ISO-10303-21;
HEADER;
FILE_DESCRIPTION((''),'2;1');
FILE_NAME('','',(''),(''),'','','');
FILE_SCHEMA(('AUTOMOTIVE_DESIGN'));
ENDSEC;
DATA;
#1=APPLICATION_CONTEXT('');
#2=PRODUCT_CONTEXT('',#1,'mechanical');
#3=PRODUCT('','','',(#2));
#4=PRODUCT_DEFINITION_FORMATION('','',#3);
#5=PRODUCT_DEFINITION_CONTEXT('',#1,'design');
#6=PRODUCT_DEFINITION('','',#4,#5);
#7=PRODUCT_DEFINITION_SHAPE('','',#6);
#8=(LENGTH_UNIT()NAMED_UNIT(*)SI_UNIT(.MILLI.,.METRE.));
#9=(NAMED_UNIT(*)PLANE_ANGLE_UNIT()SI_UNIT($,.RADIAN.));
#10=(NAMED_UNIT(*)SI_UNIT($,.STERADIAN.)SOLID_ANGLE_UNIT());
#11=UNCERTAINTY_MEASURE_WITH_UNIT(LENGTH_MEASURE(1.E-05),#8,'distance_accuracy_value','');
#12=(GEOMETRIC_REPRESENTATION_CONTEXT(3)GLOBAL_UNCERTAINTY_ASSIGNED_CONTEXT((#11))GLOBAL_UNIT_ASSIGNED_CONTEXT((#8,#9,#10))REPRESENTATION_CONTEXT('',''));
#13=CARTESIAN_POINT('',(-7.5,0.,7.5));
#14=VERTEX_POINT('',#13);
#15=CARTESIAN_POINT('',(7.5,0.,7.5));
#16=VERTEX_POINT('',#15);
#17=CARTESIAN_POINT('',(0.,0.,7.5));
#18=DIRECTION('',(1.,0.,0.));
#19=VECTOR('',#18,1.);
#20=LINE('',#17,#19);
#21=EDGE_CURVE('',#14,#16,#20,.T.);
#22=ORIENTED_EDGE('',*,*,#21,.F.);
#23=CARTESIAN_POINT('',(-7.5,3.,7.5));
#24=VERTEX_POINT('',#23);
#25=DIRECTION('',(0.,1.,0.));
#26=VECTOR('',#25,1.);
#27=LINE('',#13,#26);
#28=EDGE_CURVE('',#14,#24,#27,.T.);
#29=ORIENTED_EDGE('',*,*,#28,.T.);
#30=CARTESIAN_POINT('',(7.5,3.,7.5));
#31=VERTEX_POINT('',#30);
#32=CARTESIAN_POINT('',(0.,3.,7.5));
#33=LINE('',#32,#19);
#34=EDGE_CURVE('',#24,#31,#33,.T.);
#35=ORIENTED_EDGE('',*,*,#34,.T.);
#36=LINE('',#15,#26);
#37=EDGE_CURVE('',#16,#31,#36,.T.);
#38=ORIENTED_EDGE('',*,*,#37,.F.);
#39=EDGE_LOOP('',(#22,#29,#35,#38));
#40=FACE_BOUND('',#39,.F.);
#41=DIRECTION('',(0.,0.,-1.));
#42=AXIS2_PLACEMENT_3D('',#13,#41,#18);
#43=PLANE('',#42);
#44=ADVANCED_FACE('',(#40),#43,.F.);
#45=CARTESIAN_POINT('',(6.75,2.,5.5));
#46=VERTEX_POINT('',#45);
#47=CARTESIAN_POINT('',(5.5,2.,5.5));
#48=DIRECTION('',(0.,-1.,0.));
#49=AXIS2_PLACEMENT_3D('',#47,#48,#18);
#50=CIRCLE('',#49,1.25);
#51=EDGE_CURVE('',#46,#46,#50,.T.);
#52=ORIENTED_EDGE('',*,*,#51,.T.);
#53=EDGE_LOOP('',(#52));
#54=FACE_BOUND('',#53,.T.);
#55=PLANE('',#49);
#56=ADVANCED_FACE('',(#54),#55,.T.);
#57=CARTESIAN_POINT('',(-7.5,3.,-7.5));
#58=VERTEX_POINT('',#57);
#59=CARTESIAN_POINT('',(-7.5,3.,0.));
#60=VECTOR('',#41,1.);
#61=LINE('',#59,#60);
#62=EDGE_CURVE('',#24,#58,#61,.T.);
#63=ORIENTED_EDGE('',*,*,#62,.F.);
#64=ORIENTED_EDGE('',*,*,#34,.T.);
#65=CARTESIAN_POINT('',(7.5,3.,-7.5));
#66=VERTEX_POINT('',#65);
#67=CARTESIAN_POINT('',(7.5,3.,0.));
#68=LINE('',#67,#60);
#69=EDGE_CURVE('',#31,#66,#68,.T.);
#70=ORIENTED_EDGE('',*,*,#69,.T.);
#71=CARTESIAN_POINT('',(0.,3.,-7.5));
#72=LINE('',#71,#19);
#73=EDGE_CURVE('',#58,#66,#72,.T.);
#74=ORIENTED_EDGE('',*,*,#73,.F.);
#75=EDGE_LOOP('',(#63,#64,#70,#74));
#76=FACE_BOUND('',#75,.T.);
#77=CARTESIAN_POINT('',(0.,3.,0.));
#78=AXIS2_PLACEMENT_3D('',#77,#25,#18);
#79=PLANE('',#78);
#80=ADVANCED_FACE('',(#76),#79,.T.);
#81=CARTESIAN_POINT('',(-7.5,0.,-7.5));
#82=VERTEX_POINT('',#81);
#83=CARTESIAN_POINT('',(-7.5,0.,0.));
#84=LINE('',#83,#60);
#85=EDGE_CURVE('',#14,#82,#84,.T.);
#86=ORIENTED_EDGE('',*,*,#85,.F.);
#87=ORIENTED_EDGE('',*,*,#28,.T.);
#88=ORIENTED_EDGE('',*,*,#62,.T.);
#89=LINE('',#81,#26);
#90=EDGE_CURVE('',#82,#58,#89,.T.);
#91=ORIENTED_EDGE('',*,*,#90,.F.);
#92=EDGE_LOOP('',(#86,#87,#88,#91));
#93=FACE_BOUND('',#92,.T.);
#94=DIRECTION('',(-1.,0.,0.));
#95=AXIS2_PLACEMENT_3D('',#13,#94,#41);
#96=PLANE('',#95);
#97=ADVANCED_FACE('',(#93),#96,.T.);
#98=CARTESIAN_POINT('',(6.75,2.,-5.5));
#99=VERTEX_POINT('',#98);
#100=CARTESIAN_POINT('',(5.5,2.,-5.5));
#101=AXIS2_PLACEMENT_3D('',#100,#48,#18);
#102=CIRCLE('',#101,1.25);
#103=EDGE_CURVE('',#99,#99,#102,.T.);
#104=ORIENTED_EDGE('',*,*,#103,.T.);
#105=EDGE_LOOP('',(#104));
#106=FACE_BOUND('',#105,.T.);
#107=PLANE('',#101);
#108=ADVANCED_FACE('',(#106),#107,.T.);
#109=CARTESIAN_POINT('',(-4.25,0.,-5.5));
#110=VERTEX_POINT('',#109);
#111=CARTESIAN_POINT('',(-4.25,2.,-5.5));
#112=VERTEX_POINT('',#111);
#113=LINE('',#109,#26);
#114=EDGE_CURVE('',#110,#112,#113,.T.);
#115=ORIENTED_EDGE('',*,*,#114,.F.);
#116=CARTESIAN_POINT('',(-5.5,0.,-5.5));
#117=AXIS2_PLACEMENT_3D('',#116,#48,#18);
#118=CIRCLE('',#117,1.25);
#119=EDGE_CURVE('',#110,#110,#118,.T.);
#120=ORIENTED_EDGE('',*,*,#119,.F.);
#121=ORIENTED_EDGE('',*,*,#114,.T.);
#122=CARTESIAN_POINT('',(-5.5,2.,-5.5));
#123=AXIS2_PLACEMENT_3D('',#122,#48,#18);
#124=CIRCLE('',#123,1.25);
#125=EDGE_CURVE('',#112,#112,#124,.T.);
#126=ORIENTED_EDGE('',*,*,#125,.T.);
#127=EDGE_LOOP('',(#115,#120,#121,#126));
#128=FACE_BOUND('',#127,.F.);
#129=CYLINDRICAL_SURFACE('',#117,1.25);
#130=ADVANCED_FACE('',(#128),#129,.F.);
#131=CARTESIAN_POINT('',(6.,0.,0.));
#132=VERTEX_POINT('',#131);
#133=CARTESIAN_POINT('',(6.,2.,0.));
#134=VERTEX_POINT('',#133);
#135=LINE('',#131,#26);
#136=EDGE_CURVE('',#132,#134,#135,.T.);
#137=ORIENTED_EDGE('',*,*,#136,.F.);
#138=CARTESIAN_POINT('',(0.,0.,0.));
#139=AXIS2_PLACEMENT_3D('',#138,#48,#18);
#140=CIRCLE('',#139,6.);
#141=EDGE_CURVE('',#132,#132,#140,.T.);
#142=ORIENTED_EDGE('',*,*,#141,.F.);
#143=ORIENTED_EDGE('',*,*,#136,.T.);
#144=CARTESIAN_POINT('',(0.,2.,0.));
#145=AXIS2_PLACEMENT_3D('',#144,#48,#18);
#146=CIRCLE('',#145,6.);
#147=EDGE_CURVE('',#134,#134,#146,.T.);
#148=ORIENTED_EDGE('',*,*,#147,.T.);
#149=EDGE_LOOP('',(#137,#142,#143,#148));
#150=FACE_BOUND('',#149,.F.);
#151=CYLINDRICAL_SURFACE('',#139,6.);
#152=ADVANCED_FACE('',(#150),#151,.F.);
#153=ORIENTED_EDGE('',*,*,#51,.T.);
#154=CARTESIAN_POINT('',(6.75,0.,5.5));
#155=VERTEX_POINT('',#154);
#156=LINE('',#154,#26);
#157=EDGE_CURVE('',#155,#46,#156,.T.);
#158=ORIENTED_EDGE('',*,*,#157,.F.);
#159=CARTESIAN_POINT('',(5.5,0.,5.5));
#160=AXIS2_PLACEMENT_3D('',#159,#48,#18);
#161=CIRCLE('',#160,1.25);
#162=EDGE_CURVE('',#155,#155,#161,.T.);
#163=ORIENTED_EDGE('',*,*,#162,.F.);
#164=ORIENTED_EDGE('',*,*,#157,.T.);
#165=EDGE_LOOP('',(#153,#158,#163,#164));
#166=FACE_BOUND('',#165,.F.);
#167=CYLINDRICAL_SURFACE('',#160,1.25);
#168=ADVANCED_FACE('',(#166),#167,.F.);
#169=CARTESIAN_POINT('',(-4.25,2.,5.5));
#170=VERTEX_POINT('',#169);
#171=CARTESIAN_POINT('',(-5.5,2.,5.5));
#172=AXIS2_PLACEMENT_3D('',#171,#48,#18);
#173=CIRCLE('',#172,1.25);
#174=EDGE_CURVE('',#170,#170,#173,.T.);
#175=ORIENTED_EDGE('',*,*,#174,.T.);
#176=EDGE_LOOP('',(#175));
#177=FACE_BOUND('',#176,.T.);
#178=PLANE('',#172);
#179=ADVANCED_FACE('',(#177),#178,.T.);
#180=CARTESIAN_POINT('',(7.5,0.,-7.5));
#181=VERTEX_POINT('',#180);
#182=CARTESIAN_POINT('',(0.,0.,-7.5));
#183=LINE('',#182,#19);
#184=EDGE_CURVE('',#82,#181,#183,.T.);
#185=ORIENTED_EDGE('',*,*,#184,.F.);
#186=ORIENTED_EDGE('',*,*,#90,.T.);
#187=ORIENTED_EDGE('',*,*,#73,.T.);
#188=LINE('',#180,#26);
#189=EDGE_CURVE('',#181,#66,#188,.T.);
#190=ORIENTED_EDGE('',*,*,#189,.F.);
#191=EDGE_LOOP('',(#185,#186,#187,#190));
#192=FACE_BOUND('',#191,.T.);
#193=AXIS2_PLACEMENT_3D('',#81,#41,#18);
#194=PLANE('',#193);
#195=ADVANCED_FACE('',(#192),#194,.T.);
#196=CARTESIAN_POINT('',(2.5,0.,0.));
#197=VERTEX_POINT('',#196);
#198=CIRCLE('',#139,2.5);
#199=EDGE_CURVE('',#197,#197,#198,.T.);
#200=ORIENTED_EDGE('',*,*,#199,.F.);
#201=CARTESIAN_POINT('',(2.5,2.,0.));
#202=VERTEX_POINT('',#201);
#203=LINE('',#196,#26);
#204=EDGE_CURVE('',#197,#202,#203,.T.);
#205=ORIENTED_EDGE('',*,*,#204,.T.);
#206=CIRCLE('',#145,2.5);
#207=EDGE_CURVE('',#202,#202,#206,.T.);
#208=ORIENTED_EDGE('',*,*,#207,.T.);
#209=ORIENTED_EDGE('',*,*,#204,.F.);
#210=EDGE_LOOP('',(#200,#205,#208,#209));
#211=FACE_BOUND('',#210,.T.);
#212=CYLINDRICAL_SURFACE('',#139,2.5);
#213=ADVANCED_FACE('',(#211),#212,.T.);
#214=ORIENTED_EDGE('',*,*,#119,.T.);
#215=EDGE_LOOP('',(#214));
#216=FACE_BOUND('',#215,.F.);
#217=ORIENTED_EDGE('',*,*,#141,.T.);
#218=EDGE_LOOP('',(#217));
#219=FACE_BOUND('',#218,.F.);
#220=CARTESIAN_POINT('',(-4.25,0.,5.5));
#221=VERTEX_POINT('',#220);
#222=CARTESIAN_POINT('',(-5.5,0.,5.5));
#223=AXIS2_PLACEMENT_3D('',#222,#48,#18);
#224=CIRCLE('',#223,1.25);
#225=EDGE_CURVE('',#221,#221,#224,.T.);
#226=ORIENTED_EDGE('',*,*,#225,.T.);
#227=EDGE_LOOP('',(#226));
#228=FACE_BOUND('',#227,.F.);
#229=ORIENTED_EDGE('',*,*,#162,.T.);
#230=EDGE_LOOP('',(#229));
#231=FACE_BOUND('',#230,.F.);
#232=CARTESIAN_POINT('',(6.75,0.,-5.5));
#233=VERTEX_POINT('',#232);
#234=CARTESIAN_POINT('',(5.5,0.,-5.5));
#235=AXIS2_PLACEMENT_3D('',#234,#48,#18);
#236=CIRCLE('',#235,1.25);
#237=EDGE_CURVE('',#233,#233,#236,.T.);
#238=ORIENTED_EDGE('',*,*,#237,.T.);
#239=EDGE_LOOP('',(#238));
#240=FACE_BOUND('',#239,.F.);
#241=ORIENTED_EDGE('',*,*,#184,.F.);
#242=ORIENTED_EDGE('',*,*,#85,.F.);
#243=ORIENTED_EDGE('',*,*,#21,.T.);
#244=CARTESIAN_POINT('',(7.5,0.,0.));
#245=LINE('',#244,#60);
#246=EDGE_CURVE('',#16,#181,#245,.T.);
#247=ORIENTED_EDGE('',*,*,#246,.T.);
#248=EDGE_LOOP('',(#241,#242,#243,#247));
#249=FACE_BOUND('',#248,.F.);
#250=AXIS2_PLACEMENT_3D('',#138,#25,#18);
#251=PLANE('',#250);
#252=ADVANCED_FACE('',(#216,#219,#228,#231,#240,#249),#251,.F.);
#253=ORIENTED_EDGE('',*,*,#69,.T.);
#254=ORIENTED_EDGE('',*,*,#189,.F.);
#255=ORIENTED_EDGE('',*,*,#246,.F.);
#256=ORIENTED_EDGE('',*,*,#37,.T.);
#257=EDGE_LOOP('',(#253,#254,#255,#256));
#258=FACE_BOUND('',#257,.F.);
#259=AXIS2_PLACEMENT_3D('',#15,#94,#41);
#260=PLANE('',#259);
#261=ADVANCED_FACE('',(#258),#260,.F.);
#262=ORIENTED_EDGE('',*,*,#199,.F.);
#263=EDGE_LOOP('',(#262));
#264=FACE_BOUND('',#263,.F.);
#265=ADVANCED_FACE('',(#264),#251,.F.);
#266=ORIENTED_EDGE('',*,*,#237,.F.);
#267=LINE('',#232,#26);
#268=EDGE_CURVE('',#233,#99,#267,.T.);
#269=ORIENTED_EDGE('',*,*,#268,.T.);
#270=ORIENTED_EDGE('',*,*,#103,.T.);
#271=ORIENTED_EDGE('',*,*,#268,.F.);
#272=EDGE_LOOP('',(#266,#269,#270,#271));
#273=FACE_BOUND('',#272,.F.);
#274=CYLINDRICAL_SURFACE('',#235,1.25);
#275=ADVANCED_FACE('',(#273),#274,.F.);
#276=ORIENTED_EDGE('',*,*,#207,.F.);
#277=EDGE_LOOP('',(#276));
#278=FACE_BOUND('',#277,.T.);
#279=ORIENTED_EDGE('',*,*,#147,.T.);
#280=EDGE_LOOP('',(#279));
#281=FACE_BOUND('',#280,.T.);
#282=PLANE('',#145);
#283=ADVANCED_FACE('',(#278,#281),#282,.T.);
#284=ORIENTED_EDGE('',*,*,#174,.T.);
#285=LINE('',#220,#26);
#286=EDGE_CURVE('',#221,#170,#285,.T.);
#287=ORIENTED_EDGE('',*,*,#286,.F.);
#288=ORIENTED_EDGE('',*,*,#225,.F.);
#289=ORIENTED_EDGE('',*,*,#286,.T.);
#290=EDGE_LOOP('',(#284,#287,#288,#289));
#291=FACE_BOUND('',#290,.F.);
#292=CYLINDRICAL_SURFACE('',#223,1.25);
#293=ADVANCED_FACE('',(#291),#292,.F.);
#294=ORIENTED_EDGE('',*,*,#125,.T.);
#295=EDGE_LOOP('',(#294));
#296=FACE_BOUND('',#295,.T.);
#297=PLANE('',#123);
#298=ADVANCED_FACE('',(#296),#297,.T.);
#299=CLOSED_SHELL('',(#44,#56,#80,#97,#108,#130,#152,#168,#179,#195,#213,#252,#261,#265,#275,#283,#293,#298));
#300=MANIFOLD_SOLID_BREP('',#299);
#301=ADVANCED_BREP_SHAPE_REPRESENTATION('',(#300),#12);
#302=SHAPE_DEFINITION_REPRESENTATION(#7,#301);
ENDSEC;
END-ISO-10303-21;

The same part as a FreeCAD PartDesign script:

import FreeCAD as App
import Part
import Sketcher

doc = App.newDocument("Part")
body = doc.addObject("PartDesign::Body", "Body")

# Sketch on XZ plane
sketch1 = body.newObject("Sketcher::SketchObject", "Sketch")
sketch1.AttachmentSupport = (doc.getObject("XZ_Plane"), [""])
sketch1.MapMode = "FlatFace"
sketch1.addGeometry([
    Part.LineSegment(App.Vector(-8, -8, 0), App.Vector(-8, 8, 0)),
    Part.LineSegment(App.Vector(-8, 8, 0), App.Vector(8, 8, 0)),
    Part.LineSegment(App.Vector(8, 8, 0), App.Vector(8, -8, 0)),
    Part.LineSegment(App.Vector(8, -8, 0), App.Vector(-8, -8, 0)),
], False)
sketch1.addConstraint([
    Sketcher.Constraint("Coincident", 0, 2, 1, 1),
    Sketcher.Constraint("Coincident", 1, 2, 2, 1),
    Sketcher.Constraint("Coincident", 2, 2, 3, 1),
    Sketcher.Constraint("Coincident", 3, 2, 0, 1),
    Sketcher.Constraint("Vertical", 0),
    Sketcher.Constraint("Horizontal", 1),
    Sketcher.Constraint("Vertical", 2),
    Sketcher.Constraint("Horizontal", 3),
    Sketcher.Constraint("Symmetric", 0, 2, 2, 2, -1, 1),
    Sketcher.Constraint("Equal", 3, 0),
    Sketcher.Constraint("DistanceX", 1, 1, 1, 2, 15.0),
])
pad1 = body.newObject("PartDesign::Pad", "Pad")
pad1.Profile = sketch1
pad1.Length = 3
pad1.Reversed = True

# Sketch on XZ plane
sketch2 = body.newObject("Sketcher::SketchObject", "Sketch001")
sketch2.AttachmentSupport = (doc.getObject("XZ_Plane"), [""])
sketch2.MapMode = "FlatFace"
sketch2.addGeometry([
    Part.Circle(App.Vector(0, 0, 0), App.Vector(0, 0, 1), 6),
    Part.Circle(App.Vector(0, 0, 0), App.Vector(0, 0, 1), 2.5),
], False)
sketch2.addConstraint([
    Sketcher.Constraint("Coincident", 0, 3, -1, 1),
    Sketcher.Constraint("Coincident", 1, 3, -1, 1),
    Sketcher.Constraint("Diameter", 0, 12.0),
    Sketcher.Constraint("Diameter", 1, 5.0),
])
pocket1 = body.newObject("PartDesign::Pocket", "Pocket")
pocket1.Profile = sketch2
pocket1.Length = 2

# Sketch on XZ plane
sketch3 = body.newObject("Sketcher::SketchObject", "Sketch002")
sketch3.AttachmentSupport = (doc.getObject("XZ_Plane"), [""])
sketch3.MapMode = "FlatFace"
sketch3.addGeometry([
    Part.Circle(App.Vector(5.5, 5.5, 0), App.Vector(0, 0, 1), 1.2),
    Part.Circle(App.Vector(-5.5, 5.5, 0), App.Vector(0, 0, 1), 1.2),
    Part.Circle(App.Vector(-5.5, -5.5, 0), App.Vector(0, 0, 1), 1.2),
    Part.Circle(App.Vector(5.5, -5.5, 0), App.Vector(0, 0, 1), 1.2),
], False)
sketch3.addConstraint([
    Sketcher.Constraint("Equal", 0, 1),
    Sketcher.Constraint("Equal", 1, 2),
    Sketcher.Constraint("Equal", 2, 3),
    Sketcher.Constraint("Symmetric", 0, 3, 2, 3, -1, 1),
    Sketcher.Constraint("Symmetric", 1, 3, 3, 3, -1, 1),
    Sketcher.Constraint("Symmetric", 0, 3, 1, 3, -2),
    Sketcher.Constraint("Diameter", 0, 2.5),
    Sketcher.Constraint("DistanceX", 1, 3, 0, 3, 11.0),
    Sketcher.Constraint("DistanceY", 2, 3, 1, 3, 11.0),
])
pocket2 = body.newObject("PartDesign::Pocket", "Pocket001")
pocket2.Profile = sketch3
pocket2.Length = 2

doc.recompute()
